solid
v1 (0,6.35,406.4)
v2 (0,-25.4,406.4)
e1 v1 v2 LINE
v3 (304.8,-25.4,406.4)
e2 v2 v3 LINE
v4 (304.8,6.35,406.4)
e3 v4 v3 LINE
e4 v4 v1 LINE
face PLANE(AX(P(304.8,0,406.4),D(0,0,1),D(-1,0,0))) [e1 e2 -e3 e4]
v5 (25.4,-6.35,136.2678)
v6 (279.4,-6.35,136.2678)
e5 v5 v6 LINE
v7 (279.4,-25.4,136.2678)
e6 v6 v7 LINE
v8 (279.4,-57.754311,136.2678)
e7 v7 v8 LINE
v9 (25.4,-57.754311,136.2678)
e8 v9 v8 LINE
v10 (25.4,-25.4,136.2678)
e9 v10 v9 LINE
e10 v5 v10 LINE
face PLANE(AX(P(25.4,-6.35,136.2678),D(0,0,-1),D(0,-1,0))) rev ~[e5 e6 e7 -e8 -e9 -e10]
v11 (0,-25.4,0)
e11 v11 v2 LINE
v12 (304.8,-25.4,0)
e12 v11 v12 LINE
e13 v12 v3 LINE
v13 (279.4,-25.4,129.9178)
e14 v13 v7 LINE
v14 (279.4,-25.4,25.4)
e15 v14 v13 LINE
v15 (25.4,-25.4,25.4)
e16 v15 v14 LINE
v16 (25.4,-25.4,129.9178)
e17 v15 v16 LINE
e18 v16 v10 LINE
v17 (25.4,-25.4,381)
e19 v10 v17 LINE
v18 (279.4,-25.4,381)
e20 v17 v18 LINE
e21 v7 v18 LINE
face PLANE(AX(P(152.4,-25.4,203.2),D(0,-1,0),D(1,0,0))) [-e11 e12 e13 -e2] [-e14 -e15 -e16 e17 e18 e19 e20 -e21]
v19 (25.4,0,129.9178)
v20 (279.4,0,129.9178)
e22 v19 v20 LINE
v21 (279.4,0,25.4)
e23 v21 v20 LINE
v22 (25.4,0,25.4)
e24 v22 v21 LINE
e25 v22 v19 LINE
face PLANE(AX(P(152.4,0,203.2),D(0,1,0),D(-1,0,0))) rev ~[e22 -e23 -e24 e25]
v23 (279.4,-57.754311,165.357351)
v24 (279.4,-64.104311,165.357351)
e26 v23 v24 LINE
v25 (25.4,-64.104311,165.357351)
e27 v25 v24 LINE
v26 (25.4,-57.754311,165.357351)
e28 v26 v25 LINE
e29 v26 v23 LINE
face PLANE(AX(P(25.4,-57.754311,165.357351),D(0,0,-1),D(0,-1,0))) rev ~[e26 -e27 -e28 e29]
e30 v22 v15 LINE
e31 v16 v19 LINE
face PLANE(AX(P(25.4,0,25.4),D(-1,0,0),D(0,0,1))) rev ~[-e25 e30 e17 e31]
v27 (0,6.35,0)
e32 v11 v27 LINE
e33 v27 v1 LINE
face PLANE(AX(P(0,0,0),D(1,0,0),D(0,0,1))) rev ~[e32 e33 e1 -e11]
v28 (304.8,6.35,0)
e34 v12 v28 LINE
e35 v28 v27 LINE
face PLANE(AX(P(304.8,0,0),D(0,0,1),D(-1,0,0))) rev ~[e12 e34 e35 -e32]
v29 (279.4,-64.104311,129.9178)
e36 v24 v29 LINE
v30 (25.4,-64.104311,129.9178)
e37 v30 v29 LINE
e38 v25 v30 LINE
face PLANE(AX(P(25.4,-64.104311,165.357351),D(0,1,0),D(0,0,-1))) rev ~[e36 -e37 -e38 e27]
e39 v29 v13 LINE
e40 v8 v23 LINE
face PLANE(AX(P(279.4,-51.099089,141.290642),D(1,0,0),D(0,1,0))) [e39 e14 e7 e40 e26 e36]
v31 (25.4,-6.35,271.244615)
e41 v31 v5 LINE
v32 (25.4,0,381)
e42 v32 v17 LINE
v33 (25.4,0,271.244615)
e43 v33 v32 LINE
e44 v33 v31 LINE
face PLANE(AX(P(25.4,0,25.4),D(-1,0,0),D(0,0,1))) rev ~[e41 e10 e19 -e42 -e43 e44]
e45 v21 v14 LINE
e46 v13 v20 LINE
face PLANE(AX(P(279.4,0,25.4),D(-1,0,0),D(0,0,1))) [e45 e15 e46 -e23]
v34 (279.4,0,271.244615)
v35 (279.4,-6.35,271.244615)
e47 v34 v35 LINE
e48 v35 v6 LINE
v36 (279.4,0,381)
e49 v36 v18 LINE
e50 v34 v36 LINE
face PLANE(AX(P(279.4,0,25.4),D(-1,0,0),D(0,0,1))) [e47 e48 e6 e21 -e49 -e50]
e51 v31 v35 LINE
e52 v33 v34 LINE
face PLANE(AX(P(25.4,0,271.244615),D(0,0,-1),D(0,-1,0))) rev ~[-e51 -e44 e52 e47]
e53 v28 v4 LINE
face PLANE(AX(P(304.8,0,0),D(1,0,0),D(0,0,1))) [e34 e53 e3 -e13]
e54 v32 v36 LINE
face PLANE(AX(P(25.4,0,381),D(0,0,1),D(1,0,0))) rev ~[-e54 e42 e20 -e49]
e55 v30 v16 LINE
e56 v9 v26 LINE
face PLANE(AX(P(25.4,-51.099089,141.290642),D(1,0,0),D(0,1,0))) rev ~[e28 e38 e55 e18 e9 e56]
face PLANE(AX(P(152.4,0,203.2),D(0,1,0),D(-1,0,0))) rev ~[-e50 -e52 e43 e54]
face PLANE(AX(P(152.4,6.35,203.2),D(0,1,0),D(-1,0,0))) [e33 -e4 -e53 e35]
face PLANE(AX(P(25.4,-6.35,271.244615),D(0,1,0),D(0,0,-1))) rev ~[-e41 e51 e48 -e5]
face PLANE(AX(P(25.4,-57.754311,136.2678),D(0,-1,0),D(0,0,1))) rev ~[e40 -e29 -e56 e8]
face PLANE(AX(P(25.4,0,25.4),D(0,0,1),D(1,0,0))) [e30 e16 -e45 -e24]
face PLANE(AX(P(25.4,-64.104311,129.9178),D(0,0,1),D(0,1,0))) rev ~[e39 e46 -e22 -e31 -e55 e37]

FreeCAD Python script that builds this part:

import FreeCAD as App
import Part
import Sketcher
Q = App.Units.Quantity

doc = App.newDocument("Part")
params = doc.addObject("Spreadsheet::Sheet", "Params")
for row, (alias, value) in enumerate([
    ("sketch1_width", "12 in"),
    ("sketch1_width2", "10 in"),
    ("sketch1_height", "16 in"),
    ("sketch1_height2", "14 in"),
    ("pad1_length", "1 in"),
    ("sketch2_width", "12 in"),
    ("sketch2_height", "16 in"),
    ("pad2_length", "0.25 in"),
    ("sketch3_width", "0.25 in"),
    ("pad3_length", "10 in"),
], start=1):
    params.set(f"A{row}", alias)
    params.set(f"B{row}", "=" + value)
    params.setAlias(f"B{row}", alias)

body = doc.addObject("PartDesign::Body", "Body")

sketch1 = doc.addObject("Sketcher::SketchObject", "Sketch")
body.addObject(sketch1)
sketch1.AttachmentSupport = (doc.XZ_Plane, [""])
sketch1.MapMode = "FlatFace"
sketch1.addGeometry([
    Part.LineSegment(App.Vector(0, 406, 0), App.Vector(0, 0, 0)),
    Part.LineSegment(App.Vector(0, 0, 0), App.Vector(305, 0, 0)),
    Part.LineSegment(App.Vector(305, 0, 0), App.Vector(305, 406, 0)),
    Part.LineSegment(App.Vector(305, 406, 0), App.Vector(0, 406, 0)),
    Part.LineSegment(App.Vector(279, 25, 0), App.Vector(25, 25, 0)),
    Part.LineSegment(App.Vector(25, 25, 0), App.Vector(25, 381, 0)),
    Part.LineSegment(App.Vector(25, 381, 0), App.Vector(279, 381, 0)),
    Part.LineSegment(App.Vector(279, 381, 0), App.Vector(279, 25, 0)),
], False)
sketch1.addConstraint([
    Sketcher.Constraint("Coincident", 0, 2, 1, 1),
    Sketcher.Constraint("Coincident", 1, 2, 2, 1),
    Sketcher.Constraint("Coincident", 2, 2, 3, 1),
    Sketcher.Constraint("Coincident", 3, 2, 0, 1),
    Sketcher.Constraint("Coincident", 4, 2, 5, 1),
    Sketcher.Constraint("Coincident", 5, 2, 6, 1),
    Sketcher.Constraint("Coincident", 6, 2, 7, 1),
    Sketcher.Constraint("Coincident", 7, 2, 4, 1),
    Sketcher.Constraint("Vertical", 0),
    Sketcher.Constraint("Horizontal", 1),
    Sketcher.Constraint("Vertical", 2),
    Sketcher.Constraint("Horizontal", 3),
    Sketcher.Constraint("Horizontal", 4),
    Sketcher.Constraint("Vertical", 5),
    Sketcher.Constraint("Horizontal", 6),
    Sketcher.Constraint("Vertical", 7),
    Sketcher.Constraint("Coincident", 0, 2, -1, 1),
    Sketcher.Constraint("DistanceX", 1, 1, 1, 2, Q("12 in")),
    Sketcher.Constraint("DistanceX", 4, 2, 4, 1, Q("10 in")),
    Sketcher.Constraint("DistanceY", 0, 2, 0, 1, Q("16 in")),
    Sketcher.Constraint("DistanceY", 5, 1, 5, 2, Q("14 in")),
    Sketcher.Constraint("DistanceX", -1, 1, 4, 2, Q("1 in")),
    Sketcher.Constraint("DistanceY", -1, 1, 4, 2, Q("1 in")),
])
sketch1.setExpression("Constraints[17]", "Params.sketch1_width")
sketch1.setExpression("Constraints[18]", "Params.sketch1_width2")
sketch1.setExpression("Constraints[19]", "Params.sketch1_height")
sketch1.setExpression("Constraints[20]", "Params.sketch1_height2")
pad1 = doc.addObject("PartDesign::Pad", "Pad")
body.addObject(pad1)
pad1.Profile = sketch1
pad1.setExpression("Length", "Params.pad1_length")

sketch2 = doc.addObject("Sketcher::SketchObject", "Sketch001")
body.addObject(sketch2)
sketch2.AttachmentSupport = (doc.XZ_Plane, [""])
sketch2.MapMode = "FlatFace"
sketch2.addGeometry([
    Part.LineSegment(App.Vector(305, 406, 0), App.Vector(305, 0, 0)),
    Part.LineSegment(App.Vector(305, 0, 0), App.Vector(0, 0, 0)),
    Part.LineSegment(App.Vector(0, 0, 0), App.Vector(0, 406, 0)),
    Part.LineSegment(App.Vector(0, 406, 0), App.Vector(305, 406, 0)),
], False)
sketch2.addConstraint([
    Sketcher.Constraint("Coincident", 0, 2, 1, 1),
    Sketcher.Constraint("Coincident", 1, 2, 2, 1),
    Sketcher.Constraint("Coincident", 2, 2, 3, 1),
    Sketcher.Constraint("Coincident", 3, 2, 0, 1),
    Sketcher.Constraint("Vertical", 0),
    Sketcher.Constraint("Horizontal", 1),
    Sketcher.Constraint("Vertical", 2),
    Sketcher.Constraint("Horizontal", 3),
    Sketcher.Constraint("Coincident", 1, 2, -1, 1),
    Sketcher.Constraint("DistanceX", 1, 2, 1, 1, Q("12 in")),
    Sketcher.Constraint("DistanceY", 0, 2, 0, 1, Q("16 in")),
])
sketch2.setExpression("Constraints[9]", "Params.sketch2_width")
sketch2.setExpression("Constraints[10]", "Params.sketch2_height")
pad2 = doc.addObject("PartDesign::Pad", "Pad001")
body.addObject(pad2)
pad2.Profile = sketch2
pad2.setExpression("Length", "Params.pad2_length")
pad2.Reversed = True

sketch3 = doc.addObject("Sketcher::SketchObject", "Sketch002")
body.addObject(sketch3)
sketch3.AttachmentSupport = (doc.YZ_Plane, [""])
sketch3.MapMode = "FlatFace"
sketch3.AttachmentOffset = App.Placement(App.Vector(0, 0, 1 * 25.4), App.Rotation())
sketch3.addGeometry([
    Part.LineSegment(App.Vector(-64, 130, 0), App.Vector(0, 130, 0)),
    Part.LineSegment(App.Vector(0, 130, 0), App.Vector(0, 271, 0)),
    Part.LineSegment(App.Vector(0, 271, 0), App.Vector(-6, 271, 0)),
    Part.LineSegment(App.Vector(-6, 271, 0), App.Vector(-6, 136, 0)),
    Part.LineSegment(App.Vector(-6, 136, 0), App.Vector(-58, 136, 0)),
    Part.LineSegment(App.Vector(-58, 136, 0), App.Vector(-58, 165, 0)),
    Part.LineSegment(App.Vector(-58, 165, 0), App.Vector(-64, 165, 0)),
    Part.LineSegment(App.Vector(-64, 165, 0), App.Vector(-64, 130, 0)),
], False)
sketch3.addConstraint([
    Sketcher.Constraint("Coincident", 0, 2, 1, 1),
    Sketcher.Constraint("Coincident", 1, 2, 2, 1),
    Sketcher.Constraint("Coincident", 2, 2, 3, 1),
    Sketcher.Constraint("Coincident", 3, 2, 4, 1),
    Sketcher.Constraint("Coincident", 4, 2, 5, 1),
    Sketcher.Constraint("Coincident", 5, 2, 6, 1),
    Sketcher.Constraint("Coincident", 6, 2, 7, 1),
    Sketcher.Constraint("Coincident", 7, 2, 0, 1),
    Sketcher.Constraint("Horizontal", 0),
    Sketcher.Constraint("Vertical", 1),
    Sketcher.Constraint("Horizontal", 2),
    Sketcher.Constraint("Vertical", 3),
    Sketcher.Constraint("Horizontal", 4),
    Sketcher.Constraint("Vertical", 5),
    Sketcher.Constraint("Horizontal", 6),
    Sketcher.Constraint("Vertical", 7),
    Sketcher.Constraint("PointOnObject", 0, 2, -2),
    Sketcher.Constraint("Equal", 2, 6),
    Sketcher.Constraint("DistanceX", 2, 2, 2, 1, Q("0.25 in")),
    Sketcher.Constraint("DistanceY", 0, 2, 3, 2, Q("0.25 in")),
    Sketcher.Constraint("DistanceX", 0, 1, 0, 2, Q("64.104311 mm")),
    Sketcher.Constraint("DistanceY", 5, 1, 5, 2, Q("29.089551 mm")),
    Sketcher.Constraint("DistanceY", -1, 1, 0, 2, Q("129.9178 mm")),
    Sketcher.Constraint("DistanceY", 1, 1, 1, 2, Q("141.326815 mm")),
])
sketch3.setExpression("Constraints[18]", "Params.sketch3_width")
pad3 = doc.addObject("PartDesign::Pad", "Pad002")
body.addObject(pad3)
pad3.Profile = sketch3
pad3.setExpression("Length", "Params.pad3_length")

doc.recompute()
